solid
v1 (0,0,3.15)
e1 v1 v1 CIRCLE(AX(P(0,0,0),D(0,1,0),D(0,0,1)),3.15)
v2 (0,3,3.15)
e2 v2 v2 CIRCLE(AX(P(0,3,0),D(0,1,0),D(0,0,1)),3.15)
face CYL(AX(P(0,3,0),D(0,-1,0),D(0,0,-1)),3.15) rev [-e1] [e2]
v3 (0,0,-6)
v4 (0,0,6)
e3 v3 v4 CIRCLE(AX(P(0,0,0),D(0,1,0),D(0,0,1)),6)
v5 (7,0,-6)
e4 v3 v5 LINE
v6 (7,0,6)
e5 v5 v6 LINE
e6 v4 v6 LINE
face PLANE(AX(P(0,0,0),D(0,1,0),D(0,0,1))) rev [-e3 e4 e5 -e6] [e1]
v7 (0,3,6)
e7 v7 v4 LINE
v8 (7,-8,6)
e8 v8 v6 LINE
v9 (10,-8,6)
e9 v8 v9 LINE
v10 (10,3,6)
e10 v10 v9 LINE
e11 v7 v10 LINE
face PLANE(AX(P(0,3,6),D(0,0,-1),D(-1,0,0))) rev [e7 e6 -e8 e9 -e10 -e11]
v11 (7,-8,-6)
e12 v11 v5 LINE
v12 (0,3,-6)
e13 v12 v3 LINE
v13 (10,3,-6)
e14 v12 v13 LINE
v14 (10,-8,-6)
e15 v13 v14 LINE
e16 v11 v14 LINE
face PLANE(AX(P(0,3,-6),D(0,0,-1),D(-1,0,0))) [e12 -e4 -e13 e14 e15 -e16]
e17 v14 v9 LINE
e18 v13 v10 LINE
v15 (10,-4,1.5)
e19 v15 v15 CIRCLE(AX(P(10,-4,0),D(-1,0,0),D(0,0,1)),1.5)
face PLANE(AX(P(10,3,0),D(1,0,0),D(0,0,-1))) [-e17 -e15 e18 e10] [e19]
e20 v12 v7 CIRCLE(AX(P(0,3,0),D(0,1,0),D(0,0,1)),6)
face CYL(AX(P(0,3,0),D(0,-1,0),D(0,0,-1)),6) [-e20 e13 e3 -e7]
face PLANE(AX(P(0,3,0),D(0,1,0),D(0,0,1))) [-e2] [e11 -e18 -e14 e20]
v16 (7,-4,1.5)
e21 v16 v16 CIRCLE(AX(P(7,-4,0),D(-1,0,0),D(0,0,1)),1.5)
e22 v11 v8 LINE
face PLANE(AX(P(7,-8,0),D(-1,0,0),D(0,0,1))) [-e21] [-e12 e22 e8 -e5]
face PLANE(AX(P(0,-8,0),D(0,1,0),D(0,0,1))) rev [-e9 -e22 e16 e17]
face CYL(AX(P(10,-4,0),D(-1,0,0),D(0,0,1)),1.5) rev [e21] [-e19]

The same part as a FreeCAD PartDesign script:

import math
import FreeCAD as App
import Part
import Sketcher
from FreeCAD import Vector
Q = App.Units.Quantity


def add_polygon(sketch, points):
    """Adds a closed chain of lines whose ends are joined by coincident constraints."""
    first, n = sketch.GeometryCount, len(points)
    for a, b in zip(points, points[1:] + points[:1]):
        sketch.addGeometry(Part.LineSegment(App.Vector(*a, 0), App.Vector(*b, 0)), False)
    for i in range(n):
        sketch.addConstraint(Sketcher.Constraint("Coincident", first + i, 2, first + (i + 1) % n, 1))

doc = App.newDocument("Part")
params = doc.addObject("Spreadsheet::Sheet", "Params")
for row, (alias, value) in enumerate([
    ("sketch1_radius", "6 mm"),
    ("sketch1_diameter", "6.3 mm"),
    ("sketch1_width", "10 mm"),
    ("pad1_length", "3 mm"),
    ("sketch2_width", "3 mm"),
    ("sketch2_height", "12 mm"),
    ("pad2_length", "8 mm"),
    ("sketch3_diameter", "3 mm"),
], start=1):
    params.set(f"A{row}", alias)
    params.set(f"B{row}", "=" + value)
    params.setAlias(f"B{row}", alias)

body = doc.addObject("PartDesign::Body", "Body")

sketch1 = body.newObject("Sketcher::SketchObject", "Sketch")
sketch1.AttachmentSupport = (doc.getObject("XZ_Plane"), [""])
sketch1.MapMode = "FlatFace"
sketch1.addGeometry([
    Part.LineSegment(Vector(10, -6, 0), Vector(0, -6, 0)),
    Part.ArcOfCircle(Part.Circle(Vector(0, 0, 0), Vector(0, 0, 1), 6), math.radians(90), math.radians(270)),
    Part.LineSegment(Vector(0, 6, 0), Vector(10, 6, 0)),
    Part.LineSegment(Vector(10, 6, 0), Vector(10, -6, 0)),
    Part.Circle(Vector(0, 0, 0), Vector(0, 0, 1), 3.15),
], False)
sketch1.addConstraint([
    Sketcher.Constraint("Tangent", 0, 2, 1, 2),
    Sketcher.Constraint("Tangent", 1, 1, 2, 1),
    Sketcher.Constraint("Coincident", 2, 2, 3, 1),
    Sketcher.Constraint("Coincident", 3, 2, 0, 1),
    Sketcher.Constraint("Horizontal", 0),
    Sketcher.Constraint("Horizontal", 2),
    Sketcher.Constraint("Vertical", 3),
    Sketcher.Constraint("Coincident", 1, 3, -1, 1),
    Sketcher.Constraint("Coincident", 4, 3, -1, 1),
    Sketcher.Constraint("Radius", 1, Q("6 mm")),
    Sketcher.Constraint("Diameter", 4, Q("6.3 mm")),
    Sketcher.Constraint("DistanceX", 0, 2, 0, 1, Q("10 mm")),
])
sketch1.setExpression("Constraints[9]", "Params.sketch1_radius")
sketch1.setExpression("Constraints[10]", "Params.sketch1_diameter")
sketch1.setExpression("Constraints[11]", "Params.sketch1_width")
pad1 = body.newObject("PartDesign::Pad", "Pad")
pad1.Profile = sketch1
pad1.setExpression("Length", "Params.pad1_length")
pad1.Reversed = True

sketch2 = body.newObject("Sketcher::SketchObject", "Sketch001")
sketch2.AttachmentSupport = (doc.getObject("XZ_Plane"), [""])
sketch2.MapMode = "FlatFace"
add_polygon(sketch2, [(7, -6), (7, 6), (10, 6), (10, -6)])
sketch2.addConstraint([
    Sketcher.Constraint("Vertical", 0),
    Sketcher.Constraint("Horizontal", 1),
    Sketcher.Constraint("Vertical", 2),
    Sketcher.Constraint("Horizontal", 3),
    Sketcher.Constraint("DistanceX", 1, 1, 1, 2, Q("3 mm")),
    Sketcher.Constraint("DistanceY", 0, 1, 0, 2, Q("12 mm")),
    Sketcher.Constraint("DistanceX", -1, 1, 0, 2, Q("7 mm")),
    Sketcher.Constraint("DistanceY", -1, 1, 0, 2, Q("6 mm")),
])
sketch2.setExpression("Constraints[8]", "Params.sketch2_width")
sketch2.setExpression("Constraints[9]", "Params.sketch2_height")
pad2 = body.newObject("PartDesign::Pad", "Pad001")
pad2.Profile = sketch2
pad2.setExpression("Length", "Params.pad2_length")

sketch3 = body.newObject("Sketcher::SketchObject", "Sketch002")
sketch3.AttachmentSupport = (doc.getObject("YZ_Plane"), [""])
sketch3.MapMode = "FlatFace"
sketch3.AttachmentOffset = App.Placement(Vector(0, 0, 7), App.Rotation())
sketch3.addGeometry(Part.Circle(Vector(-4, 0, 0), Vector(0, 0, 1), 1.5), False)
sketch3.addConstraint([
    Sketcher.Constraint("PointOnObject", 0, 3, -1),
    Sketcher.Constraint("Diameter", 0, Q("3 mm")),
    Sketcher.Constraint("DistanceX", 0, 3, -1, 1, Q("4 mm")),
])
sketch3.setExpression("Constraints[1]", "Params.sketch3_diameter")
pocket1 = body.newObject("PartDesign::Pocket", "Pocket")
pocket1.Profile = sketch3
pocket1.Type = "ThroughAll"
pocket1.Reversed = True

doc.recompute()
